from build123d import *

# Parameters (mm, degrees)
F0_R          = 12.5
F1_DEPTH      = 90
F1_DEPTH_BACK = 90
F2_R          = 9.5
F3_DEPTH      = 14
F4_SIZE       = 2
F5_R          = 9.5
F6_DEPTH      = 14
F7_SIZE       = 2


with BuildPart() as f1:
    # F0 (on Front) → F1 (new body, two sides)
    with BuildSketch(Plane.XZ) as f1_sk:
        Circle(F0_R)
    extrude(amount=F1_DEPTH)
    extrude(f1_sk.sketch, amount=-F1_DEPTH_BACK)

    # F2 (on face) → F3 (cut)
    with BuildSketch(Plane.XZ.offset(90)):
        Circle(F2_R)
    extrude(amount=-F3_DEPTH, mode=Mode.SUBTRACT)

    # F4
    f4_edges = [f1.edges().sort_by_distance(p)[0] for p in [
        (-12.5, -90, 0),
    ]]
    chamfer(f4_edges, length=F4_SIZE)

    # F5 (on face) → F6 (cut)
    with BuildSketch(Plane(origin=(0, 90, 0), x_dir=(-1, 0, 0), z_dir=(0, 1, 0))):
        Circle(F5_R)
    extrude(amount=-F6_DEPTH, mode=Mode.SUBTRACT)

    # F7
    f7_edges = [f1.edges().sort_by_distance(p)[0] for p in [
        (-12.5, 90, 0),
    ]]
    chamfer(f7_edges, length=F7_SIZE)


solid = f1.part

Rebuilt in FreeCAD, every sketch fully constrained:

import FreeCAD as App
import Part
import Sketcher

V = App.Vector


def edges_at(feature, points):
    """Names of the edges that pass closest to the given points."""
    edges = feature.Shape.Edges
    near = lambda p: min(range(len(edges)), key=lambda i: edges[i].distToShape(Part.Vertex(*p))[0])
    return sorted({f"Edge{near(p) + 1}" for p in points})

doc = App.newDocument("Part")
params = doc.addObject("Spreadsheet::Sheet", "Params")
for row, (alias, value) in enumerate([
    ("sketch1_diameter", "25 mm"),
    ("pad1_length", "90 mm"),
    ("pad1_length2", "90 mm"),
    ("sketch2_diameter", "19 mm"),
    ("pocket1_length", "14 mm"),
    ("chamfer_size", "2 mm"),
    ("sketch3_diameter", "19 mm"),
    ("pocket2_length", "14 mm"),
    ("chamfer2_size", "2 mm"),
], start=1):
    params.set(f"A{row}", alias)
    params.set(f"B{row}", "=" + value)
    params.setAlias(f"B{row}", alias)

body = doc.addObject("PartDesign::Body", "Body")

sketch1 = body.newObject("Sketcher::SketchObject", "Sketch")
sketch1.AttachmentSupport = (doc.getObject("XZ_Plane"), [""])
sketch1.MapMode = "FlatFace"
sketch1.addGeometry(Part.Circle(V(0, 0, 0), V(0, 0, 1), 12), False)
sketch1.addConstraint(Sketcher.Constraint("Coincident", 0, 3, -1, 1))
sketch1.addConstraint(Sketcher.Constraint("Diameter", 0, 25.0))
sketch1.setExpression("Constraints[1]", "Params.sketch1_diameter")
pad1 = body.newObject("PartDesign::Pad", "Pad")
pad1.Profile = sketch1
pad1.Type = "TwoLengths"
pad1.setExpression("Length", "Params.pad1_length")
pad1.setExpression("Length2", "Params.pad1_length2")

sketch2 = body.newObject("Sketcher::SketchObject", "Sketch001")
sketch2.AttachmentSupport = (doc.getObject("XZ_Plane"), [""])
sketch2.MapMode = "FlatFace"
sketch2.AttachmentOffset = App.Placement(V(0, 0, 90), App.Rotation())
sketch2.addGeometry(Part.Circle(V(0, 0, 0), V(0, 0, 1), 10), False)
sketch2.addConstraint(Sketcher.Constraint("Coincident", 0, 3, -1, 1))
sketch2.addConstraint(Sketcher.Constraint("Diameter", 0, 19.0))
sketch2.setExpression("Constraints[1]", "Params.sketch2_diameter")
pocket1 = body.newObject("PartDesign::Pocket", "Pocket")
pocket1.Profile = sketch2
pocket1.setExpression("Length", "Params.pocket1_length")
doc.recompute()

chamfer = body.newObject("PartDesign::Chamfer", "Chamfer")
chamfer.Base = (pocket1, edges_at(pocket1, [(-12.5, -90, 0)]))
chamfer.setExpression("Size", "Params.chamfer_size")

sketch3 = body.newObject("Sketcher::SketchObject", "Sketch002")
sketch3.AttachmentSupport = (doc.getObject("XZ_Plane"), [""])
sketch3.MapMode = "FlatFace"
sketch3.AttachmentOffset = App.Placement(V(0, 0, -90), App.Rotation())
sketch3.addGeometry(Part.Circle(V(0, 0, 0), V(0, 0, 1), 10), False)
sketch3.addConstraint(Sketcher.Constraint("Coincident", 0, 3, -1, 1))
sketch3.addConstraint(Sketcher.Constraint("Diameter", 0, 19.0))
sketch3.setExpression("Constraints[1]", "Params.sketch3_diameter")
pocket2 = body.newObject("PartDesign::Pocket", "Pocket001")
pocket2.Profile = sketch3
pocket2.setExpression("Length", "Params.pocket2_length")
pocket2.Reversed = True
doc.recompute()

chamfer2 = body.newObject("PartDesign::Chamfer", "Chamfer001")
chamfer2.Base = (pocket2, edges_at(pocket2, [(-12.5, 90, 0)]))
chamfer2.setExpression("Size", "Params.chamfer2_size")

doc.recompute()
